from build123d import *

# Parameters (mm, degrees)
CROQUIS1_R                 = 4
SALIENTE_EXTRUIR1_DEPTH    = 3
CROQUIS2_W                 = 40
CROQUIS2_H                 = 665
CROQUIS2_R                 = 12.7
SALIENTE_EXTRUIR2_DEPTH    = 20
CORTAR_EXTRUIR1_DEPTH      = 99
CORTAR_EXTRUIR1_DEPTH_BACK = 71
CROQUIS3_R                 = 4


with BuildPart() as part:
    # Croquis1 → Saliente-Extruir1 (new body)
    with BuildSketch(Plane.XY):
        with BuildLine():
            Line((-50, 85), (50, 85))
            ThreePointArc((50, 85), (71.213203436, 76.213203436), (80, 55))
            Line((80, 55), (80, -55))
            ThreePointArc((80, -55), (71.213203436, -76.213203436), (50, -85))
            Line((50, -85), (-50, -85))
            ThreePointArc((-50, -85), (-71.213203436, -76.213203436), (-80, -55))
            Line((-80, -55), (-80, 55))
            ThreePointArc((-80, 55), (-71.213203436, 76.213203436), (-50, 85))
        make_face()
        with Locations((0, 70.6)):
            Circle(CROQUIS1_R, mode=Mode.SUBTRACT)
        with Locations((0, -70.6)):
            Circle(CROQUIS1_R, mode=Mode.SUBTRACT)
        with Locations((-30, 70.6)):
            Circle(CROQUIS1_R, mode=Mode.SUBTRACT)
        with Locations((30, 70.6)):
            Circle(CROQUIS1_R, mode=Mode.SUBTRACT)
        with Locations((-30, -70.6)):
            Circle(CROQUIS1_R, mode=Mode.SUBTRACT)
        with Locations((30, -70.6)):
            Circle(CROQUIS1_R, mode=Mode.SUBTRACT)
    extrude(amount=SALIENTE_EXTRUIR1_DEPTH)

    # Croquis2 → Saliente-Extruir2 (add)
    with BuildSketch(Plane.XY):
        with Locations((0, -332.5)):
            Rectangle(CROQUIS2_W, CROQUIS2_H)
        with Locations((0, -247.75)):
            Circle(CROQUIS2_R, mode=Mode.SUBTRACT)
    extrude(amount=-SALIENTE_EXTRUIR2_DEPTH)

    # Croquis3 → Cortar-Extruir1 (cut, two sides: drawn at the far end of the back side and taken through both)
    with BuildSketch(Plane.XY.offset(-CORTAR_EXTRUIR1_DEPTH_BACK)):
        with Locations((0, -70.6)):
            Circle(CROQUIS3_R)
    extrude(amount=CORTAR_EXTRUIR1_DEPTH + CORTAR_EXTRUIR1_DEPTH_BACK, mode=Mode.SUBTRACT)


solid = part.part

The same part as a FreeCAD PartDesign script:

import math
import FreeCAD as App
import Part
import Sketcher

V = App.Vector

doc = App.newDocument("Part")
body = doc.addObject("PartDesign::Body", "Body")

sketch1 = doc.addObject("Sketcher::SketchObject", "Sketch")
body.addObject(sketch1)
sketch1.AttachmentSupport = (doc.XY_Plane, [""])
sketch1.MapMode = "FlatFace"
sketch1.addGeometry(Part.LineSegment(V(50, 85, 0), V(-50, 85, 0)), False)
sketch1.addGeometry(Part.ArcOfCircle(Part.Circle(V(-50, 55, 0), V(0, 0, 1), 30), math.radians(90), math.radians(180)), False)
sketch1.addGeometry(Part.LineSegment(V(-80, 55, 0), V(-80, -55, 0)), False)
sketch1.addGeometry(Part.ArcOfCircle(Part.Circle(V(-50, -55, 0), V(0, 0, 1), 30), math.radians(180), math.radians(270)), False)
sketch1.addGeometry(Part.LineSegment(V(-50, -85, 0), V(50, -85, 0)), False)
sketch1.addGeometry(Part.ArcOfCircle(Part.Circle(V(50, -55, 0), V(0, 0, 1), 30), math.radians(-90), math.radians(0)), False)
sketch1.addGeometry(Part.LineSegment(V(80, -55, 0), V(80, 55, 0)), False)
sketch1.addGeometry(Part.ArcOfCircle(Part.Circle(V(50, 55, 0), V(0, 0, 1), 30), math.radians(0), math.radians(90)), False)
sketch1.addGeometry(Part.Circle(V(30, -70.6, 0), V(0, 0, 1), 4), False)
sketch1.addGeometry(Part.Circle(V(0, -70.6, 0), V(0, 0, 1), 4), False)
sketch1.addGeometry(Part.Circle(V(-30, -70.6, 0), V(0, 0, 1), 4), False)
sketch1.addGeometry(Part.Circle(V(30, 70.6, 0), V(0, 0, 1), 4), False)
sketch1.addGeometry(Part.Circle(V(0, 70.6, 0), V(0, 0, 1), 4), False)
sketch1.addGeometry(Part.Circle(V(-30, 70.6, 0), V(0, 0, 1), 4), False)
sketch1.addConstraint(Sketcher.Constraint("Tangent", 0, 2, 1, 1))
sketch1.addConstraint(Sketcher.Constraint("Tangent", 1, 2, 2, 1))
sketch1.addConstraint(Sketcher.Constraint("Tangent", 2, 2, 3, 1))
sketch1.addConstraint(Sketcher.Constraint("Tangent", 3, 2, 4, 1))
sketch1.addConstraint(Sketcher.Constraint("Tangent", 4, 2, 5, 1))
sketch1.addConstraint(Sketcher.Constraint("Tangent", 5, 2, 6, 1))
sketch1.addConstraint(Sketcher.Constraint("Tangent", 6, 2, 7, 1))
sketch1.addConstraint(Sketcher.Constraint("Tangent", 7, 2, 0, 1))
sketch1.addConstraint(Sketcher.Constraint("Horizontal", 0))
sketch1.addConstraint(Sketcher.Constraint("Vertical", 2))
sketch1.addConstraint(Sketcher.Constraint("Horizontal", 4))
sketch1.addConstraint(Sketcher.Constraint("Vertical", 6))
sketch1.addConstraint(Sketcher.Constraint("Equal", 1, 3))
sketch1.addConstraint(Sketcher.Constraint("Equal", 3, 5))
sketch1.addConstraint(Sketcher.Constraint("Equal", 5, 7))
sketch1.addConstraint(Sketcher.Constraint("Equal", 8, 9))
sketch1.addConstraint(Sketcher.Constraint("Equal", 9, 10))
sketch1.addConstraint(Sketcher.Constraint("Equal", 10, 11))
sketch1.addConstraint(Sketcher.Constraint("Equal", 11, 12))
sketch1.addConstraint(Sketcher.Constraint("Equal", 12, 13))
sketch1.addConstraint(Sketcher.Constraint("Symmetric", 1, 3, 5, 3, -1, 1))
sketch1.addConstraint(Sketcher.Constraint("Symmetric", 10, 3, 11, 3, -1, 1))
sketch1.addConstraint(Sketcher.Constraint("Symmetric", 9, 3, 12, 3, -1, 1))
sketch1.addConstraint(Sketcher.Constraint("Symmetric", 8, 3, 13, 3, -1, 1))
sketch1.addConstraint(Sketcher.Constraint("Symmetric", 8, 3, 10, 3, -2))
sketch1.addConstraint(Sketcher.Constraint("PointOnObject", 9, 3, -2))
sketch1.addConstraint(Sketcher.Constraint("Horizontal", 8, 3, 9, 3))
sketch1.addConstraint(Sketcher.Constraint("Diameter", 8, 8.0))
sketch1.addConstraint(Sketcher.Constraint("Radius", 1, 30.0))
sketch1.addConstraint(Sketcher.Constraint("DistanceX", 0, 2, 0, 1, 100.0))
sketch1.addConstraint(Sketcher.Constraint("DistanceY", 2, 2, 2, 1, 110.0))
sketch1.addConstraint(Sketcher.Constraint("DistanceX", -1, 1, 8, 3, 30.0))
sketch1.addConstraint(Sketcher.Constraint("DistanceY", 8, 3, -1, 1, 70.6))
pad1 = doc.addObject("PartDesign::Pad", "Pad")
body.addObject(pad1)
pad1.Profile = sketch1
pad1.Length = 3

sketch2 = doc.addObject("Sketcher::SketchObject", "Sketch001")
body.addObject(sketch2)
sketch2.AttachmentSupport = (doc.XY_Plane, [""])
sketch2.MapMode = "FlatFace"
sketch2.addGeometry(Part.LineSegment(V(-20, 0, 0), V(-20, -665, 0)), False)
sketch2.addGeometry(Part.LineSegment(V(-20, -665, 0), V(20, -665, 0)), False)
sketch2.addGeometry(Part.LineSegment(V(20, -665, 0), V(20, 0, 0)), False)
sketch2.addGeometry(Part.LineSegment(V(20, 0, 0), V(-20, 0, 0)), False)
sketch2.addGeometry(Part.Circle(V(0, -248, 0), V(0, 0, 1), 13), False)
sketch2.addConstraint(Sketcher.Constraint("Coincident", 0, 2, 1, 1))
sketch2.addConstraint(Sketcher.Constraint("Coincident", 1, 2, 2, 1))
sketch2.addConstraint(Sketcher.Constraint("Coincident", 2, 2, 3, 1))
sketch2.addConstraint(Sketcher.Constraint("Coincident", 3, 2, 0, 1))
sketch2.addConstraint(Sketcher.Constraint("Vertical", 0))
sketch2.addConstraint(Sketcher.Constraint("Horizontal", 1))
sketch2.addConstraint(Sketcher.Constraint("Vertical", 2))
sketch2.addConstraint(Sketcher.Constraint("Horizontal", 3))
sketch2.addConstraint(Sketcher.Constraint("Symmetric", 2, 2, 3, 2, -1, 1))
sketch2.addConstraint(Sketcher.Constraint("PointOnObject", 4, 3, -2))
sketch2.addConstraint(Sketcher.Constraint("Diameter", 4, 25.4))
sketch2.addConstraint(Sketcher.Constraint("DistanceX", 1, 1, 1, 2, 40.0))
sketch2.addConstraint(Sketcher.Constraint("DistanceY", 0, 2, 0, 1, 665.0))
sketch2.addConstraint(Sketcher.Constraint("DistanceY", 4, 3, -1, 1, 247.75))
pad2 = doc.addObject("PartDesign::Pad", "Pad001")
body.addObject(pad2)
pad2.Profile = sketch2
pad2.Length = 20
pad2.Reversed = True

sketch3 = doc.addObject("Sketcher::SketchObject", "Sketch002")
body.addObject(sketch3)
sketch3.AttachmentSupport = (doc.XY_Plane, [""])
sketch3.MapMode = "FlatFace"
sketch3.addGeometry(Part.Circle(V(0, -70.6, 0), V(0, 0, 1), 4), False)
sketch3.addConstraint(Sketcher.Constraint("PointOnObject", 0, 3, -2))
sketch3.addConstraint(Sketcher.Constraint("Diameter", 0, 8.0))
sketch3.addConstraint(Sketcher.Constraint("DistanceY", 0, 3, -1, 1, 70.6))
pocket1 = doc.addObject("PartDesign::Pocket", "Pocket")
body.addObject(pocket1)
pocket1.Profile = sketch3
pocket1.Type = "ThroughAll"
pocket1.Midplane = True

doc.recompute()
